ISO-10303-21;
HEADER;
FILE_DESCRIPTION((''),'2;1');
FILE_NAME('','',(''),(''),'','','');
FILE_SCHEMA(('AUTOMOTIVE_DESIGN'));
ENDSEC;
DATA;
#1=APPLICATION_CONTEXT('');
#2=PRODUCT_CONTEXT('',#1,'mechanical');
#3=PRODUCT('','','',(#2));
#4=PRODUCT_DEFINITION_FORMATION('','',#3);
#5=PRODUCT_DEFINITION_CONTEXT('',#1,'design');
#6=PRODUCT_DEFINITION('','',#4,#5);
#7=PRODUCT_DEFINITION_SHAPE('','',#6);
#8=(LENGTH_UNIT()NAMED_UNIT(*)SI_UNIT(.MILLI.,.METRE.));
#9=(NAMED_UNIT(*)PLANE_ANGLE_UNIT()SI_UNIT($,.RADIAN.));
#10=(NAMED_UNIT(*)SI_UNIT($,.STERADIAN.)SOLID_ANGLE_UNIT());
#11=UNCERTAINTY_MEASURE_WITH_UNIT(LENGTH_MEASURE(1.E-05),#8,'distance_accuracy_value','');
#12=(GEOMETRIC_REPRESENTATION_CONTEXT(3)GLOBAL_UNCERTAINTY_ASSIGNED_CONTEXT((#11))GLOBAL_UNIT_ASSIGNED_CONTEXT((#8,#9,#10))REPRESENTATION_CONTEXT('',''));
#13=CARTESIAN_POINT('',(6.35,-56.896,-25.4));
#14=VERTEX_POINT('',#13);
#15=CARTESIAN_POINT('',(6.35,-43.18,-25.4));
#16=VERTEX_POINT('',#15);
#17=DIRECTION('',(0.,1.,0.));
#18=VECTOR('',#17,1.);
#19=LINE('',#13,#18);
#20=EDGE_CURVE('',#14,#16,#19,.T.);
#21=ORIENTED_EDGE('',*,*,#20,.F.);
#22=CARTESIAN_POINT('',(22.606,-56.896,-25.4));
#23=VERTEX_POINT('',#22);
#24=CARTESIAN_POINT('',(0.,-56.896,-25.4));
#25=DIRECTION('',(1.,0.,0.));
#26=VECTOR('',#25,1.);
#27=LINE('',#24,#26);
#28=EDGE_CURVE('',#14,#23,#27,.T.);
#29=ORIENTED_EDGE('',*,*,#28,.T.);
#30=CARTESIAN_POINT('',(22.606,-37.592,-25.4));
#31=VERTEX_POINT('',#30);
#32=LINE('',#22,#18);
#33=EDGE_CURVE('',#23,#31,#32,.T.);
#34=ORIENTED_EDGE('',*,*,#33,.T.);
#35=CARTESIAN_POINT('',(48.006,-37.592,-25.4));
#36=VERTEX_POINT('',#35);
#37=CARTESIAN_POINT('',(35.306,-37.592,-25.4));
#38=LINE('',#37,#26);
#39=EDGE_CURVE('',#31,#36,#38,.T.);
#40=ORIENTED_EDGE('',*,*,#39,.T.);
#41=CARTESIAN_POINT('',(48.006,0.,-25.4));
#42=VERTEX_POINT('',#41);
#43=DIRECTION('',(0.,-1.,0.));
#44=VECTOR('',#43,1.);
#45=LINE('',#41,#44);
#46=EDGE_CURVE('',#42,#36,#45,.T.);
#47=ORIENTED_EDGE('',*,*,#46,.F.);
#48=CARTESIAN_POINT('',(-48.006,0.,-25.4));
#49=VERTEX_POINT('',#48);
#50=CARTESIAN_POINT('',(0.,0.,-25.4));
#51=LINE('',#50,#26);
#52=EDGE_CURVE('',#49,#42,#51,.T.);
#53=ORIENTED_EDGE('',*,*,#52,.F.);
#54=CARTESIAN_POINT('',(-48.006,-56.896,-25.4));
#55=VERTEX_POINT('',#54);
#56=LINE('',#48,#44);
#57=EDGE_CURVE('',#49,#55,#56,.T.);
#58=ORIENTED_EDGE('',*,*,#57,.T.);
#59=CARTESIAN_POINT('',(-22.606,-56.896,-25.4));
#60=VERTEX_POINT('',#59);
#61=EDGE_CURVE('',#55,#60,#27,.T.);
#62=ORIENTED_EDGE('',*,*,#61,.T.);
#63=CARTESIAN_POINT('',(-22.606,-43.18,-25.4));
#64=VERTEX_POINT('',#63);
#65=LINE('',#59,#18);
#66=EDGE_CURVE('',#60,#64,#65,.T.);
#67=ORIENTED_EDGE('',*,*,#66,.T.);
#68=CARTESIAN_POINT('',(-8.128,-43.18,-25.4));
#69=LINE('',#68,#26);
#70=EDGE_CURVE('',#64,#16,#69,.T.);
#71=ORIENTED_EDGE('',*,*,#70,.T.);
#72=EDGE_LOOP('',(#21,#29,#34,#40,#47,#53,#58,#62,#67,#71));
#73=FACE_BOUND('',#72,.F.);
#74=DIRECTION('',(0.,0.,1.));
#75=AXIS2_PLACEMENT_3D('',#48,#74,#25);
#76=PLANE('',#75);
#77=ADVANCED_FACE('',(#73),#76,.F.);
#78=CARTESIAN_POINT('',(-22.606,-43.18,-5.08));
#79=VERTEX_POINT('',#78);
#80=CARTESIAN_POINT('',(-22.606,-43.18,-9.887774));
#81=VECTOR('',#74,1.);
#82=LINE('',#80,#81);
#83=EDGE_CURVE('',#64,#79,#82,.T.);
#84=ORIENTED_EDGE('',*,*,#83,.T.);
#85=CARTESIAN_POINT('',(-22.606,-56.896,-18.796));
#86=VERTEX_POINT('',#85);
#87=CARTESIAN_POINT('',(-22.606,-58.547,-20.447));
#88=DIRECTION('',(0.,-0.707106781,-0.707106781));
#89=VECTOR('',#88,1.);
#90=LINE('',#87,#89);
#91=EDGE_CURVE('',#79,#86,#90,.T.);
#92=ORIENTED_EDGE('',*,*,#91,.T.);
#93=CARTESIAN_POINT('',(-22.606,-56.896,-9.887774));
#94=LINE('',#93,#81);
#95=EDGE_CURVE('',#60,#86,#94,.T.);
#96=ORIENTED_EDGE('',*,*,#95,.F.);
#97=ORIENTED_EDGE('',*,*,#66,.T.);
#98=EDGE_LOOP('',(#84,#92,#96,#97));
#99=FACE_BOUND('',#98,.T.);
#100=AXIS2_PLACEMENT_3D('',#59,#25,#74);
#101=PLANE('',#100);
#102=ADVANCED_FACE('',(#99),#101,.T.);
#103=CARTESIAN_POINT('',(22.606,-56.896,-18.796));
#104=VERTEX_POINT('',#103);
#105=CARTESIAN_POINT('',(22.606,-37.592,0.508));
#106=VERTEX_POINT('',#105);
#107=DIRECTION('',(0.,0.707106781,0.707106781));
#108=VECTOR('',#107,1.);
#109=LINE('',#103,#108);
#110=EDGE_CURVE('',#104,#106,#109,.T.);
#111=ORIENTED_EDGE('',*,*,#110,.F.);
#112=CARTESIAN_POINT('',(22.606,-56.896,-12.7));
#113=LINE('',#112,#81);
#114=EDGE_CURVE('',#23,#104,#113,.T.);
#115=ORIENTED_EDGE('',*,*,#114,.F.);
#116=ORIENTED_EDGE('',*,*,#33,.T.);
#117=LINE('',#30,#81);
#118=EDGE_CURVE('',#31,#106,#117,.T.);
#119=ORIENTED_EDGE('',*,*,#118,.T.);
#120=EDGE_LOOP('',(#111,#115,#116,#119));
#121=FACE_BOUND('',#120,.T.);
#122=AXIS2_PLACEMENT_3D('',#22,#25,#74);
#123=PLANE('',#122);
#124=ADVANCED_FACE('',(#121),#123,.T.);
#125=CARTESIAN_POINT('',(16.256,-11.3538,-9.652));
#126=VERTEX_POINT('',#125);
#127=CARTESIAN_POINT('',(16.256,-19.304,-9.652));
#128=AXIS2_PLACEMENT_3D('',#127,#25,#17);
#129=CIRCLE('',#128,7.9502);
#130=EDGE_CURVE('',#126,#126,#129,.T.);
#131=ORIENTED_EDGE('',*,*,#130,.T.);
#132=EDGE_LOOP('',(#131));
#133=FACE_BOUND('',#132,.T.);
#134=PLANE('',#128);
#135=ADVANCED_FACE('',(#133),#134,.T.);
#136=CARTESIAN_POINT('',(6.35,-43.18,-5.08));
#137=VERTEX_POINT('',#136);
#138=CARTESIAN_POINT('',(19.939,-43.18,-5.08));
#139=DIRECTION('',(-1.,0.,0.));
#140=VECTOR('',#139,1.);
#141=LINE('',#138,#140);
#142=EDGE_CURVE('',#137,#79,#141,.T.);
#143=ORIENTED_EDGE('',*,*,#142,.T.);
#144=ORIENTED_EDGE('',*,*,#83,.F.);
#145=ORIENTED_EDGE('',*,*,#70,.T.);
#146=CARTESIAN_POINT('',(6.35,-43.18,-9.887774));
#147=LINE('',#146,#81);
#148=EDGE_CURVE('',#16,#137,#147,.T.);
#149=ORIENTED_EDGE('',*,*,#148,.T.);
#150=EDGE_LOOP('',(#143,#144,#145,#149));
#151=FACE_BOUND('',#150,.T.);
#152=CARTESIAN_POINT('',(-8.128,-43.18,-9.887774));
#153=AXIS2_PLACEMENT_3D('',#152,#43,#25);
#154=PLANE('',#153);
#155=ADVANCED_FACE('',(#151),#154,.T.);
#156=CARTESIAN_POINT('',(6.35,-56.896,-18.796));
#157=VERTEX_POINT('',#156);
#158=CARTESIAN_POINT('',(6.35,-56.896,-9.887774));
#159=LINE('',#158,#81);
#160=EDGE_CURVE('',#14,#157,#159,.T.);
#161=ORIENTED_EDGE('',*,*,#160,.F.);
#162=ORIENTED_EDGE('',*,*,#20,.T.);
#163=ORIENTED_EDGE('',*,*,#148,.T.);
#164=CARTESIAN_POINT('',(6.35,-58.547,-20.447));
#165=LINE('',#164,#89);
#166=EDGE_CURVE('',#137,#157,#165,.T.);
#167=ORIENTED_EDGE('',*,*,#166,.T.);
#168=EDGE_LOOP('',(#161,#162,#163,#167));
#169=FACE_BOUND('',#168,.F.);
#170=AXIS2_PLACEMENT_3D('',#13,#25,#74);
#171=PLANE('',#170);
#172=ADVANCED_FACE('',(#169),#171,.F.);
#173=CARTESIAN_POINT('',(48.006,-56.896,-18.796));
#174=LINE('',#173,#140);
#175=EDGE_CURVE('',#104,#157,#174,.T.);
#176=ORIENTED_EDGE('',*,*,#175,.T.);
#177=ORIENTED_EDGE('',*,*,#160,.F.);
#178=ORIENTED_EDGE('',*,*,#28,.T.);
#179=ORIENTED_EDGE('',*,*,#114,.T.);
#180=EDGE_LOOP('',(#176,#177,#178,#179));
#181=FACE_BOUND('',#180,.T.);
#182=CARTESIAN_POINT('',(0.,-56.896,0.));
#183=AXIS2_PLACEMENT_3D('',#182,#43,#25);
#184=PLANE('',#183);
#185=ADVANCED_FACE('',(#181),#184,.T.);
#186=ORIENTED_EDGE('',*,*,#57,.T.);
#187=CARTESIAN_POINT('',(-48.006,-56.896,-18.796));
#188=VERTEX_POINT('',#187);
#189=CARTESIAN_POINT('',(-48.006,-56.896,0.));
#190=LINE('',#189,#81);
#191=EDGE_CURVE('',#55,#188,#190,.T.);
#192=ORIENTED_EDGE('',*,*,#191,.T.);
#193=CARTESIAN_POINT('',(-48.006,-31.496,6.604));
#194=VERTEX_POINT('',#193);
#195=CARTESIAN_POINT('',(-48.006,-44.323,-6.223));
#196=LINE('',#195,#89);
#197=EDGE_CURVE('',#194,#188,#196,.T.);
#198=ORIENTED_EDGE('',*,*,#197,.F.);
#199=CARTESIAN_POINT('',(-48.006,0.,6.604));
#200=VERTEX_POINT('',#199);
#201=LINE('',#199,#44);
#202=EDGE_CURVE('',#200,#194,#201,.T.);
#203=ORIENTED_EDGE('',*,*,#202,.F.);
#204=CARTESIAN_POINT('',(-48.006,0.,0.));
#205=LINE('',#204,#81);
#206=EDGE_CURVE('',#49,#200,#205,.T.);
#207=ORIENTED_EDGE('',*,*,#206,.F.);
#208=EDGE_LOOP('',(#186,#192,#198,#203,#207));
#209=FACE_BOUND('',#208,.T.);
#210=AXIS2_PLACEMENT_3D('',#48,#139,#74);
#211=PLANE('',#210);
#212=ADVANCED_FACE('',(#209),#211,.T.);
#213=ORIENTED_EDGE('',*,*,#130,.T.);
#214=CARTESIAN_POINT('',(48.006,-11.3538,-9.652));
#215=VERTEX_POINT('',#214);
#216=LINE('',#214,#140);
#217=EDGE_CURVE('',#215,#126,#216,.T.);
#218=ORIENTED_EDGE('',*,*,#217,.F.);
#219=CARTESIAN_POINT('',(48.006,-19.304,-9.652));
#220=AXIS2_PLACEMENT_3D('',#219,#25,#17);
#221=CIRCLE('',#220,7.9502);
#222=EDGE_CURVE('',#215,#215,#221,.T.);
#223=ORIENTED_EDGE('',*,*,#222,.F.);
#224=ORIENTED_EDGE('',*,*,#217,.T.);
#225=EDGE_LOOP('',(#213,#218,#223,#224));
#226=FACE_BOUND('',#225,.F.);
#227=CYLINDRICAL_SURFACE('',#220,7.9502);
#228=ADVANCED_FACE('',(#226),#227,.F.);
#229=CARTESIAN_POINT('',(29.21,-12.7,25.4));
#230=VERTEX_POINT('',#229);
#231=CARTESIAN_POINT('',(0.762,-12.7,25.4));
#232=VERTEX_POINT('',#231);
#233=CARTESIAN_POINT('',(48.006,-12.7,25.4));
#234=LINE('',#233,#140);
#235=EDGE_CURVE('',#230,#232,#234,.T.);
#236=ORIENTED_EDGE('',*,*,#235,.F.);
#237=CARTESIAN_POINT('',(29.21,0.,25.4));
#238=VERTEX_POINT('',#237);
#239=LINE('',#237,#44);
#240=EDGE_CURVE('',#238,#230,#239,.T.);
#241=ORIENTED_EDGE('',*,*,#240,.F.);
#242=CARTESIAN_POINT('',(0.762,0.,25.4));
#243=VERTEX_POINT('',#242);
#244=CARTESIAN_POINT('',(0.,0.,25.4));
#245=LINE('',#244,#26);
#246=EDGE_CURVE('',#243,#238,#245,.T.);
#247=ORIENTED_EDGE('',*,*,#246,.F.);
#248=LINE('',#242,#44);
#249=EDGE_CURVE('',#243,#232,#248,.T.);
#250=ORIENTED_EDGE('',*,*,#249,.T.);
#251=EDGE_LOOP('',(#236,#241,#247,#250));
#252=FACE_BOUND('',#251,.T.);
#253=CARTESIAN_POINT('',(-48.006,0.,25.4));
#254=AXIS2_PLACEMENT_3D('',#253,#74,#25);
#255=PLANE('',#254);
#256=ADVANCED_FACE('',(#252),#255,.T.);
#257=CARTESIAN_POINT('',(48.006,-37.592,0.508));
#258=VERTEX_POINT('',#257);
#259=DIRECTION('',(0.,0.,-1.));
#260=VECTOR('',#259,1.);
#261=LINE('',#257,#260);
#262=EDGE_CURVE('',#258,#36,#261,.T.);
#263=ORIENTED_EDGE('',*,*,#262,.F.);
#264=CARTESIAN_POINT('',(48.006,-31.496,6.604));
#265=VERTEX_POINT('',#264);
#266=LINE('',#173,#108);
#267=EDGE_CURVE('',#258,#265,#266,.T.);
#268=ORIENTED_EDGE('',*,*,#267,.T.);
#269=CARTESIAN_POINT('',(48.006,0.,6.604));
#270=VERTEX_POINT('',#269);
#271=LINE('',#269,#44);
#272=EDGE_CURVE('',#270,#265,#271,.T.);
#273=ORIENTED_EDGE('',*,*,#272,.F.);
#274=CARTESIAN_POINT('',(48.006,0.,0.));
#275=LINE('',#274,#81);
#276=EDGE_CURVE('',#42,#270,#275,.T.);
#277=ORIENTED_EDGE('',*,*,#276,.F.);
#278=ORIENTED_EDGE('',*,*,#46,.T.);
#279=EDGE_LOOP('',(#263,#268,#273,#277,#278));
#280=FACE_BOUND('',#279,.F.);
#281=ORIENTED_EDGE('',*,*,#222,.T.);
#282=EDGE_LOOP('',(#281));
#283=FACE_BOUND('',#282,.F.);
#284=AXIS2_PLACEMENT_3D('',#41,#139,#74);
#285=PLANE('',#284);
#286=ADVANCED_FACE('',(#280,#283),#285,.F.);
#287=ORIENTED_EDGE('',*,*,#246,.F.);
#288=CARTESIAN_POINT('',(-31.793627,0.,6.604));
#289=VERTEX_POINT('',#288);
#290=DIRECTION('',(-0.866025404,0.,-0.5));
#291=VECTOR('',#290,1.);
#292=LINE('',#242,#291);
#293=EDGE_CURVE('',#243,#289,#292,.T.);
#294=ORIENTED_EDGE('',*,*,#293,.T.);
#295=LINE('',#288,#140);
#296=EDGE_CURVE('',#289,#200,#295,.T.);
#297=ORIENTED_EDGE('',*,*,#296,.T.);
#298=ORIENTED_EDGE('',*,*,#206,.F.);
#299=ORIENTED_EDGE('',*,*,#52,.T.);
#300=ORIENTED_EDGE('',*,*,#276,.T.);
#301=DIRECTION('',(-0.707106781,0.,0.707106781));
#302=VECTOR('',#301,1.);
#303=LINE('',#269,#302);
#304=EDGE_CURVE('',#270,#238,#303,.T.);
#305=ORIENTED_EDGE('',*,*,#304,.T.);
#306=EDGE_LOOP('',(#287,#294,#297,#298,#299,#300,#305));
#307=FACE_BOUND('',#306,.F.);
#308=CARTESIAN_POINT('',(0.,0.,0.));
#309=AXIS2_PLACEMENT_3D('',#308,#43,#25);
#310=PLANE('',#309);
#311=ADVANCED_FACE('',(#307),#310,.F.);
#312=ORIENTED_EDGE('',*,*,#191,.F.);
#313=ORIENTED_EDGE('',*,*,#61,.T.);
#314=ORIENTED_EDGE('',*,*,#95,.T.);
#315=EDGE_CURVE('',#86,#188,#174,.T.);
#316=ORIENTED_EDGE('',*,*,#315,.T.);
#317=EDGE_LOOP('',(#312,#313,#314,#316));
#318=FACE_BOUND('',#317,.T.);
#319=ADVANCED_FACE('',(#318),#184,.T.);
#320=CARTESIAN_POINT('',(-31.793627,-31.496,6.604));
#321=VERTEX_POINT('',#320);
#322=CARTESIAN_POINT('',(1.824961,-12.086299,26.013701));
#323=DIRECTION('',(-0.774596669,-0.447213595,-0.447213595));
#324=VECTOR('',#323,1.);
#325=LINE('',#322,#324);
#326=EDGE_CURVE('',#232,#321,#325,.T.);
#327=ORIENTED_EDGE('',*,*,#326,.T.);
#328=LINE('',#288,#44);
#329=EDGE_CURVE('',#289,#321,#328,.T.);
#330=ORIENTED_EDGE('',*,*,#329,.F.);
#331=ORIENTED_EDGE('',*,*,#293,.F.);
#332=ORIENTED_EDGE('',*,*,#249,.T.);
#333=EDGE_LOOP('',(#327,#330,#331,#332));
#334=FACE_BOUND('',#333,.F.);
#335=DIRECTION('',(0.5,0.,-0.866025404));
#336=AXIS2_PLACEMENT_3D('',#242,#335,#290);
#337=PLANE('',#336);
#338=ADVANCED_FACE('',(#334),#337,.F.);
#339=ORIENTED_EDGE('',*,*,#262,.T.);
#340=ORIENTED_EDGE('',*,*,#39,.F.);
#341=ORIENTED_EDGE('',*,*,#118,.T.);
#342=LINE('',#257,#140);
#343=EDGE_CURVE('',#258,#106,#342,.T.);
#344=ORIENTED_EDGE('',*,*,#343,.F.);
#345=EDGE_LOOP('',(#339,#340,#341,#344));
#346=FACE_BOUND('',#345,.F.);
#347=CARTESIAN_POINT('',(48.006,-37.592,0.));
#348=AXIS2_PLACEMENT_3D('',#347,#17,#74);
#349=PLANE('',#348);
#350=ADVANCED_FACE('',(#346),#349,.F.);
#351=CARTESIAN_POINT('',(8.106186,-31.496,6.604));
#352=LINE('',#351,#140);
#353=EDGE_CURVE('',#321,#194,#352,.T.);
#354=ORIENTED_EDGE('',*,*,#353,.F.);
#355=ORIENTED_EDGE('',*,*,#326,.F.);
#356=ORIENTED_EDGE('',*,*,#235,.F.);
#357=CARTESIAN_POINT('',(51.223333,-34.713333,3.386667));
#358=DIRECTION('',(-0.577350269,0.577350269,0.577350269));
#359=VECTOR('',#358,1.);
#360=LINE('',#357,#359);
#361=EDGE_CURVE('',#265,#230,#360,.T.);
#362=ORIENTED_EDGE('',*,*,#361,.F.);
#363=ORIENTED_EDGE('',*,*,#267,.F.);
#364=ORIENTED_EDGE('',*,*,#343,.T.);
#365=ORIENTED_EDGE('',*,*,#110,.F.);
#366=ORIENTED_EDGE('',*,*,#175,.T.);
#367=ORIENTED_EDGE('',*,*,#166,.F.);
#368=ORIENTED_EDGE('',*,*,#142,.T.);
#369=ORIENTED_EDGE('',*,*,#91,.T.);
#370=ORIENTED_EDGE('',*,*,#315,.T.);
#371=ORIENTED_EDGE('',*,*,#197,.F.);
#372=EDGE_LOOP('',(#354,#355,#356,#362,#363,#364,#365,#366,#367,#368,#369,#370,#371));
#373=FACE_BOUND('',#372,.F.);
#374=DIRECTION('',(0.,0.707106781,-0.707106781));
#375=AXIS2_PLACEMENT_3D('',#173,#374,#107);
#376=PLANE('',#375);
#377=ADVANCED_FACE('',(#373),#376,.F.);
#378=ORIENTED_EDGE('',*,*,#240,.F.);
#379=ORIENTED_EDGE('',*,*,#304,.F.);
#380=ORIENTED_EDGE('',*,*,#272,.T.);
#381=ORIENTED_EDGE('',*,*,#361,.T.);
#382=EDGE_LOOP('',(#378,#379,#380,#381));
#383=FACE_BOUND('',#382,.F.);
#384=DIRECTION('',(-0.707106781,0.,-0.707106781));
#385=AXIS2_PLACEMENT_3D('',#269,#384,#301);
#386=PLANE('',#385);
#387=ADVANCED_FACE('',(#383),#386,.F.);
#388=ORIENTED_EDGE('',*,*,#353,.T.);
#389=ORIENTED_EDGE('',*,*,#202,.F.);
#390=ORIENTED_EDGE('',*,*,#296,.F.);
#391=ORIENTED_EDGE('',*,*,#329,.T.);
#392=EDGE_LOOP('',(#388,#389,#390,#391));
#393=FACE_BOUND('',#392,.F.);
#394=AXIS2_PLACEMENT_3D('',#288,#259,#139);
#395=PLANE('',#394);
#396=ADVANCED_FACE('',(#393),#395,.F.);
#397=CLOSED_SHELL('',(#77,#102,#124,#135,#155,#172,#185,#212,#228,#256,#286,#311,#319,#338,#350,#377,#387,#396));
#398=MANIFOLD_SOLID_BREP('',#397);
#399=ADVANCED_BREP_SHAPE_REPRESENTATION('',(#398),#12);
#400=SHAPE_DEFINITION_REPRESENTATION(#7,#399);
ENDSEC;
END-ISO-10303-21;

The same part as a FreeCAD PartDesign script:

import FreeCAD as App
import Part
import Sketcher
Q = App.Units.Quantity


def add_polygon(sketch, points):
    """Adds a closed chain of lines whose ends are joined by coincident constraints."""
    first, n = sketch.GeometryCount, len(points)
    for a, b in zip(points, points[1:] + points[:1]):
        sketch.addGeometry(Part.LineSegment(App.Vector(*a, 0), App.Vector(*b, 0)), False)
    for i in range(n):
        sketch.addConstraint(Sketcher.Constraint("Coincident", first + i, 2, first + (i + 1) % n, 1))

doc = App.newDocument("Part")
body = doc.addObject("PartDesign::Body", "Body")

# Sketch on XZ plane
sketch1 = body.newObject("Sketcher::SketchObject", "Sketch")
sketch1.AttachmentSupport = (doc.getObject("XZ_Plane"), [""])
sketch1.MapMode = "FlatFace"
add_polygon(sketch1, [(-48.006, 25.4), (-48.006, -25.4), (48.006, -25.4), (48.006, 25.4)])  # lines 0-3
sketch1.addConstraint(Sketcher.Constraint("Vertical", 0))
sketch1.addConstraint(Sketcher.Constraint("Horizontal", 1))
sketch1.addConstraint(Sketcher.Constraint("Vertical", 2))
sketch1.addConstraint(Sketcher.Constraint("Horizontal", 3))
sketch1.addConstraint(Sketcher.Constraint("Symmetric", 0, 2, 2, 2, -1, 1))
sketch1.addConstraint(Sketcher.Constraint("DistanceY", 0, 2, 0, 1, Q("2 in")))
sketch1.addConstraint(Sketcher.Constraint("DistanceX", 1, 1, 1, 2, Q("3.78 in")))
pad1 = body.newObject("PartDesign::Pad", "Pad")
pad1.Profile = sketch1
pad1.Length = Q("2.24 in")

# Sketch on YZ plane
sketch2 = body.newObject("Sketcher::SketchObject", "Sketch001")
sketch2.AttachmentSupport = (doc.getObject("YZ_Plane"), [""])
sketch2.MapMode = "FlatFace"
sketch2.AttachmentOffset = App.Placement(App.Vector(0, 0, 1.89 * 25.4), App.Rotation())
add_polygon(sketch2, [(-56.896, -18.796), (-12.7, 25.4), (-56.896, 25.4)])  # lines 0-2
sketch2.addConstraint(Sketcher.Constraint("Horizontal", 1))
sketch2.addConstraint(Sketcher.Constraint("Vertical", 2))
sketch2.addConstraint(Sketcher.Constraint("Equal", 1, 2))
sketch2.addConstraint(Sketcher.Constraint("DistanceY", -1, 1, 0, 2, Q("1 in")))
sketch2.addConstraint(Sketcher.Constraint("DistanceX", 1, 2, 1, 1, Q("1.74 in")))
sketch2.addConstraint(Sketcher.Constraint("DistanceX", 0, 2, -1, 1, Q("0.5 in")))
pocket1 = body.newObject("PartDesign::Pocket", "Pocket")
pocket1.Profile = sketch2
pocket1.Type = "ThroughAll"

# Sketch on XZ plane
sketch3 = body.newObject("Sketcher::SketchObject", "Sketch002")
sketch3.AttachmentSupport = (doc.getObject("XZ_Plane"), [""])
sketch3.MapMode = "FlatFace"
sketch3.AttachmentOffset = App.Placement(App.Vector(0, 0, 2.24 * 25.4), App.Rotation())
add_polygon(sketch3, [(-22.606, 5.624452), (-22.606, -25.4), (6.35, -25.4), (6.35, 5.624452)])  # lines 0-3
sketch3.addConstraint(Sketcher.Constraint("Vertical", 0))
sketch3.addConstraint(Sketcher.Constraint("Horizontal", 1))
sketch3.addConstraint(Sketcher.Constraint("Vertical", 2))
sketch3.addConstraint(Sketcher.Constraint("Horizontal", 3))
sketch3.addConstraint(Sketcher.Constraint("DistanceY", 0, 2, -1, 1, Q("1 in")))
sketch3.addConstraint(Sketcher.Constraint("DistanceX", 1, 1, 1, 2, Q("1.14 in")))
sketch3.addConstraint(Sketcher.Constraint("DistanceX", 0, 2, -1, 1, Q("0.89 in")))
sketch3.addConstraint(Sketcher.Constraint("DistanceY", 0, 2, 0, 1, Q("31.024452 mm")))
pocket2 = body.newObject("PartDesign::Pocket", "Pocket001")
pocket2.Profile = sketch3
pocket2.Length = Q("0.54 in")

# Sketch on XZ plane
sketch4 = body.newObject("Sketcher::SketchObject", "Sketch003")
sketch4.AttachmentSupport = (doc.getObject("XZ_Plane"), [""])
sketch4.MapMode = "FlatFace"
sketch4.AttachmentOffset = App.Placement(App.Vector(0, 0, 2.24 * 25.4), App.Rotation())
add_polygon(sketch4, [(22.606, 0), (22.606, -25.4), (48.006, -25.4), (48.006, 0)])  # lines 0-3
sketch4.addConstraint(Sketcher.Constraint("Vertical", 0))
sketch4.addConstraint(Sketcher.Constraint("Horizontal", 1))
sketch4.addConstraint(Sketcher.Constraint("Vertical", 2))
sketch4.addConstraint(Sketcher.Constraint("Horizontal", 3))
sketch4.addConstraint(Sketcher.Constraint("PointOnObject", 2, 2, -1))
sketch4.addConstraint(Sketcher.Constraint("Equal", 3, 0))
sketch4.addConstraint(Sketcher.Constraint("DistanceX", 1, 1, 1, 2, Q("1 in")))
sketch4.addConstraint(Sketcher.Constraint("DistanceX", -1, 1, 0, 2, Q("0.89 in")))
pocket3 = body.newObject("PartDesign::Pocket", "Pocket002")
pocket3.Profile = sketch4
pocket3.Length = Q("0.76 in")

# Sketch on YZ plane
sketch5 = body.newObject("Sketcher::SketchObject", "Sketch004")
sketch5.AttachmentSupport = (doc.getObject("YZ_Plane"), [""])
sketch5.MapMode = "FlatFace"
sketch5.AttachmentOffset = App.Placement(App.Vector(0, 0, 1.89 * 25.4), App.Rotation())
sketch5.addGeometry(Part.Circle(App.Vector(-19.304, -9.652, 0), App.Vector(0, 0, 1), 7.9502), False)
sketch5.addConstraint(Sketcher.Constraint("Diameter", 0, Q("0.626 in")))
sketch5.addConstraint(Sketcher.Constraint("DistanceX", 0, 3, -1, 1, Q("0.76 in")))
sketch5.addConstraint(Sketcher.Constraint("DistanceY", 0, 3, -1, 1, Q("0.38 in")))
pocket4 = body.newObject("PartDesign::Pocket", "Pocket003")
pocket4.Profile = sketch5
pocket4.Length = Q("1.25 in")

# Sketch on YZ plane
sketch6 = body.newObject("Sketcher::SketchObject", "Sketch005")
sketch6.AttachmentSupport = (doc.getObject("YZ_Plane"), [""])
sketch6.MapMode = "FlatFace"
sketch6.AttachmentOffset = App.Placement(App.Vector(0, 0, 1.89 * 25.4), App.Rotation())
add_polygon(sketch6, [(-38.1, 0), (-37.592, 0), (-37.592, 0.508)])  # lines 0-2
sketch6.addConstraint(Sketcher.Constraint("Horizontal", 0))
sketch6.addConstraint(Sketcher.Constraint("Vertical", 1))
sketch6.addConstraint(Sketcher.Constraint("PointOnObject", 0, 2, -1))
sketch6.addConstraint(Sketcher.Constraint("Equal", 0, 1))
sketch6.addConstraint(Sketcher.Constraint("DistanceX", 0, 1, 0, 2, Q("0.02 in")))
sketch6.addConstraint(Sketcher.Constraint("DistanceX", 2, 2, -1, 1, Q("1.5 in")))
pocket5 = body.newObject("PartDesign::Pocket", "Pocket004")
pocket5.Profile = sketch6
pocket5.Length = Q("1 in")

# Sketch on XZ plane
sketch7 = body.newObject("Sketcher::SketchObject", "Sketch006")
sketch7.AttachmentSupport = (doc.getObject("XZ_Plane"), [""])
sketch7.MapMode = "FlatFace"
add_polygon(sketch7, [(29.21, 25.4), (48.006, 25.4), (48.006, 6.604)])  # lines 0-2
sketch7.addConstraint(Sketcher.Constraint("Horizontal", 0))
sketch7.addConstraint(Sketcher.Constraint("Vertical", 1))
sketch7.addConstraint(Sketcher.Constraint("Equal", 0, 1))
sketch7.addConstraint(Sketcher.Constraint("DistanceY", -1, 1, 0, 2, Q("1 in")))
sketch7.addConstraint(Sketcher.Constraint("DistanceX", 0, 1, 0, 2, Q("0.74 in")))
sketch7.addConstraint(Sketcher.Constraint("DistanceX", -1, 1, 0, 2, Q("1.89 in")))
pocket6 = body.newObject("PartDesign::Pocket", "Pocket005")
pocket6.Profile = sketch7
pocket6.Type = "ThroughAll"
pocket6.Reversed = True

# Sketch on XZ plane
sketch8 = body.newObject("Sketcher::SketchObject", "Sketch007")
sketch8.AttachmentSupport = (doc.getObject("XZ_Plane"), [""])
sketch8.MapMode = "FlatFace"
add_polygon(sketch8, [(-48.006, 25.4), (0.762, 25.4), (-31.793627, 6.604), (-48.006, 6.604)])  # lines 0-3
sketch8.addConstraint(Sketcher.Constraint("Horizontal", 0))
sketch8.addConstraint(Sketcher.Constraint("Horizontal", 2))
sketch8.addConstraint(Sketcher.Constraint("Vertical", 3))
sketch8.addConstraint(Sketcher.Constraint("DistanceY", -1, 1, 0, 2, Q("1 in")))
sketch8.addConstraint(Sketcher.Constraint("Angle", 1, Q("-150 deg")))
sketch8.addConstraint(Sketcher.Constraint("DistanceX", 0, 1, 0, 2, Q("1.92 in")))
sketch8.addConstraint(Sketcher.Constraint("DistanceY", 3, 1, 3, 2, Q("0.74 in")))
sketch8.addConstraint(Sketcher.Constraint("DistanceX", -1, 1, 0, 2, Q("0.03 in")))
pocket7 = body.newObject("PartDesign::Pocket", "Pocket006")
pocket7.Profile = sketch8
pocket7.Type = "ThroughAll"
pocket7.Reversed = True

doc.recompute()
